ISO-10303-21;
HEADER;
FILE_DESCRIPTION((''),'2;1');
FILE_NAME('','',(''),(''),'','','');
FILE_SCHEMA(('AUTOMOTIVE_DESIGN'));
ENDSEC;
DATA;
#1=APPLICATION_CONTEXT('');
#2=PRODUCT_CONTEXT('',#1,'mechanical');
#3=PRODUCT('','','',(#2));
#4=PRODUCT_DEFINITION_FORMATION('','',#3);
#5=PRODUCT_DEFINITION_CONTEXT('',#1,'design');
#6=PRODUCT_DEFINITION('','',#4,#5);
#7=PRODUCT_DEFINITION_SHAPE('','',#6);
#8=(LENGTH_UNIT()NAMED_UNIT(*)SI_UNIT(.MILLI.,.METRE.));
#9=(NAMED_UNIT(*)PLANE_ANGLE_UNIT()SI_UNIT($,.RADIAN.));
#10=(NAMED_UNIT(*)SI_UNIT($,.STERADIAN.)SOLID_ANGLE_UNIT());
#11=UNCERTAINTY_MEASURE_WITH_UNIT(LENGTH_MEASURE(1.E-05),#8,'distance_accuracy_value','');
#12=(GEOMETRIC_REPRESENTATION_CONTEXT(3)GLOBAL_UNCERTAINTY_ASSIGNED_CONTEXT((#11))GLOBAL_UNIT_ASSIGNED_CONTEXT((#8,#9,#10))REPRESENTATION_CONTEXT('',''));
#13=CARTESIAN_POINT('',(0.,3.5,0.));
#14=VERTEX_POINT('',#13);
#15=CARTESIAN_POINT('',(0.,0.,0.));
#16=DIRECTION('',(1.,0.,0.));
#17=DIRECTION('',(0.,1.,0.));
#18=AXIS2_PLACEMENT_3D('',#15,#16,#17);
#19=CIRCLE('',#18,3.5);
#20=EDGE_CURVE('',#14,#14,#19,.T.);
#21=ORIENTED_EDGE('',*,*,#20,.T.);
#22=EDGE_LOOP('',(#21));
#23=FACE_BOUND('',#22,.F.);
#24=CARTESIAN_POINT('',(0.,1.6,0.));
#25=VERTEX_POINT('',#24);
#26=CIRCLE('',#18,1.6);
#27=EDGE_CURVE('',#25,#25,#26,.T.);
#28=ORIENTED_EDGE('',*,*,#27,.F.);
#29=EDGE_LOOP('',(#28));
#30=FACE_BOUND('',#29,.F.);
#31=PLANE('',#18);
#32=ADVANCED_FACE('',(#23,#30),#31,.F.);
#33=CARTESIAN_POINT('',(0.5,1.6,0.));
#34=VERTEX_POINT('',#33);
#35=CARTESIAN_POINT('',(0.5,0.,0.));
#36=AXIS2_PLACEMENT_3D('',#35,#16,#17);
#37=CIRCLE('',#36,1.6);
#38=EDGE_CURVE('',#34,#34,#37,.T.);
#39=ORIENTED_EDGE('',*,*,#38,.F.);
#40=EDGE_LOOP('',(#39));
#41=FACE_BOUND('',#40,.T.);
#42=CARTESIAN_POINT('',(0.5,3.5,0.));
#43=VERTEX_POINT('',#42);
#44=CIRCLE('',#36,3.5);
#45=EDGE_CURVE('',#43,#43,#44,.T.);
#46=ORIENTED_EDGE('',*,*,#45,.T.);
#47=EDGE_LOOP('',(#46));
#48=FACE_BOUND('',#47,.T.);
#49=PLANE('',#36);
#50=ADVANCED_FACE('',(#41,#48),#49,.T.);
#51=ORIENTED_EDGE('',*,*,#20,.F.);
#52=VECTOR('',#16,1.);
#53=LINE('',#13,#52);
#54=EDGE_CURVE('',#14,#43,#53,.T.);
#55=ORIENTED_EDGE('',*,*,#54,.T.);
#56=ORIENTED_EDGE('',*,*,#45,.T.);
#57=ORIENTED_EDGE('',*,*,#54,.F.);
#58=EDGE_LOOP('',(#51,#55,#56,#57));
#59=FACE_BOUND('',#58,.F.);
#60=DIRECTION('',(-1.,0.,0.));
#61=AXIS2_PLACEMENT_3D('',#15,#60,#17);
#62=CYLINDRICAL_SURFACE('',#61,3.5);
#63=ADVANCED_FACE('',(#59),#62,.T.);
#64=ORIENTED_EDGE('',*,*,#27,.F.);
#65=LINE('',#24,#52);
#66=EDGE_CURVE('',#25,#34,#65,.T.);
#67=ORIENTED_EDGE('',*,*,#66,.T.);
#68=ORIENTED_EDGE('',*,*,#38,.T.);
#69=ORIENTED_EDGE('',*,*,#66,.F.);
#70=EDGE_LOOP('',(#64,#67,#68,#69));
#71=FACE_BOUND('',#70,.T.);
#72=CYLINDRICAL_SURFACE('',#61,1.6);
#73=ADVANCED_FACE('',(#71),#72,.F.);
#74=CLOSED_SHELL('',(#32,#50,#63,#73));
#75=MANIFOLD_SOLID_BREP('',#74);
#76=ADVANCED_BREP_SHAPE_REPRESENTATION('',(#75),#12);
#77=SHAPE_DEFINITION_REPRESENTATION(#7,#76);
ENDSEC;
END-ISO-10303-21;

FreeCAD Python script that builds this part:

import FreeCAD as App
import Part
import Sketcher

V = App.Vector
Q = App.Units.Quantity

doc = App.newDocument("Part")
params = doc.addObject("Spreadsheet::Sheet", "Params")
for row, (alias, value) in enumerate([
    ("sketch1_diameter", "7 mm"),
    ("sketch1_diameter2", "3.2 mm"),
    ("pad1_length", "0.5 mm"),
], start=1):
    params.set(f"A{row}", alias)
    params.set(f"B{row}", "=" + value)
    params.setAlias(f"B{row}", alias)

body = doc.addObject("PartDesign::Body", "Body")

sketch1 = body.newObject("Sketcher::SketchObject", "Sketch")
sketch1.AttachmentSupport = (doc.getObject("YZ_Plane"), [""])
sketch1.MapMode = "FlatFace"
sketch1.addGeometry([
    Part.Circle(V(0, 0, 0), V(0, 0, 1), 3.5),
    Part.Circle(V(0, 0, 0), V(0, 0, 1), 1.6),
], False)
sketch1.addConstraint([
    Sketcher.Constraint("Coincident", 0, 3, -1, 1),
    Sketcher.Constraint("Coincident", 1, 3, -1, 1),
    Sketcher.Constraint("Diameter", 0, Q("7 mm")),
    Sketcher.Constraint("Diameter", 1, Q("3.2 mm")),
])
sketch1.setExpression("Constraints[2]", "Params.sketch1_diameter")
sketch1.setExpression("Constraints[3]", "Params.sketch1_diameter2")
pad1 = body.newObject("PartDesign::Pad", "Pad")
pad1.Profile = sketch1
pad1.setExpression("Length", "Params.pad1_length")

doc.recompute()
